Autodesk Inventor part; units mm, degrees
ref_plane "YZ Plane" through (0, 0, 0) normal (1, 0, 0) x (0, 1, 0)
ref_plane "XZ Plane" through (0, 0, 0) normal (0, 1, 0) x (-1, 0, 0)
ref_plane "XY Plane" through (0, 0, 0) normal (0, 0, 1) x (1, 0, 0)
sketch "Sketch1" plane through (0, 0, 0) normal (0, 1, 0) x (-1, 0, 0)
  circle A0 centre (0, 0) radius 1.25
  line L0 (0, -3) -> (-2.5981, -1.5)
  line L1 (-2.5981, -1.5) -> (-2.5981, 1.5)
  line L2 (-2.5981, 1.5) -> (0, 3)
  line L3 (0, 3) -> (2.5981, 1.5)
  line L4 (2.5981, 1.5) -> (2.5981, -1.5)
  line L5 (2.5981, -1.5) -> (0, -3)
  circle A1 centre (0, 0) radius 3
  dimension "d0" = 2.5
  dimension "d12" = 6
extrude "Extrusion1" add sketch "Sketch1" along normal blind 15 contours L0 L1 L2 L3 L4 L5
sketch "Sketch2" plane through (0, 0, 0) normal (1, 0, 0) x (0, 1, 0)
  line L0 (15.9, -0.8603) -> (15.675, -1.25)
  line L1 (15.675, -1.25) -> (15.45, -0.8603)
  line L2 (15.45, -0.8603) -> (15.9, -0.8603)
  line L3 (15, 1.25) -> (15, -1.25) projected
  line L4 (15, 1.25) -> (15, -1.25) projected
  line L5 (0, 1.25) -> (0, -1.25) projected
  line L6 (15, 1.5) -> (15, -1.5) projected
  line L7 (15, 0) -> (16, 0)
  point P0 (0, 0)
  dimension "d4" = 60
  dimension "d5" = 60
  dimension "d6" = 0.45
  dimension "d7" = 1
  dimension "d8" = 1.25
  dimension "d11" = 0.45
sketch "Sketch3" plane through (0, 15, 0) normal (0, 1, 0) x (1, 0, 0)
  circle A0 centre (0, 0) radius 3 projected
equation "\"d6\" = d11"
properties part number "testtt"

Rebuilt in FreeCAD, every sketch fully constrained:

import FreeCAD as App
import Part
import Sketcher

V = App.Vector
Q = App.Units.Quantity

doc = App.newDocument("Part")
params = doc.addObject("Spreadsheet::Sheet", "Params")
for row, (alias, value) in enumerate([
    ("sketch1_diameter", "2.5 mm"),
    ("sketch1_height", "3 mm"),
    ("pad1_length", "15 mm"),
], start=1):
    params.set(f"A{row}", alias)
    params.set(f"B{row}", "=" + value)
    params.setAlias(f"B{row}", alias)

body = doc.addObject("PartDesign::Body", "Body")

# Sketch on XZ plane
sketch1 = doc.addObject("Sketcher::SketchObject", "Sketch")
body.addObject(sketch1)
sketch1.AttachmentSupport = (doc.XZ_Plane, [""])
sketch1.MapMode = "FlatFace"
sketch1.addGeometry([
    Part.LineSegment(V(2.6, -1.5, 0), V(0, -3, 0)),  # 0
    Part.LineSegment(V(0, -3, 0), V(-2.6, -1.5, 0)),  # 1
    Part.LineSegment(V(-2.6, -1.5, 0), V(-2.6, 1.5, 0)),  # 2
    Part.LineSegment(V(-2.6, 1.5, 0), V(0, 3, 0)),  # 3
    Part.LineSegment(V(0, 3, 0), V(2.6, 1.5, 0)),  # 4
    Part.LineSegment(V(2.6, 1.5, 0), V(2.6, -1.5, 0)),  # 5
    Part.Circle(V(0, 0, 0), V(0, 0, 1), 1.2),  # 6
], False)
sketch1.addConstraint([
    Sketcher.Constraint("Coincident", 0, 2, 1, 1),
    Sketcher.Constraint("Coincident", 1, 2, 2, 1),
    Sketcher.Constraint("Coincident", 2, 2, 3, 1),
    Sketcher.Constraint("Coincident", 3, 2, 4, 1),
    Sketcher.Constraint("Coincident", 4, 2, 5, 1),
    Sketcher.Constraint("Coincident", 5, 2, 0, 1),
    Sketcher.Constraint("Vertical", 2),
    Sketcher.Constraint("Vertical", 5),
    Sketcher.Constraint("Coincident", 6, 3, -1, 1),
    Sketcher.Constraint("Symmetric", 0, 2, 3, 2, -1, 1),
    Sketcher.Constraint("Symmetric", 1, 2, 4, 2, -1, 1),
    Sketcher.Constraint("PointOnObject", 0, 2, -2),
    Sketcher.Constraint("Parallel", 0, 3),
    Sketcher.Constraint("Horizontal", 2, 2, 4, 2),
    Sketcher.Constraint("Diameter", 6, 2.5),
    Sketcher.Constraint("DistanceY", 0, 2, 3, 2, 6.0),
    Sketcher.Constraint("DistanceY", 2, 1, 2, 2, 3.0),
    Sketcher.Constraint("Angle", 0, Q("-150.0002 deg")),
])
sketch1.setExpression("Constraints[14]", "Params.sketch1_diameter")
sketch1.setExpression("Constraints[16]", "Params.sketch1_height")
pad1 = doc.addObject("PartDesign::Pad", "Pad")
body.addObject(pad1)
pad1.Profile = sketch1
pad1.setExpression("Length", "Params.pad1_length")
pad1.Reversed = True

doc.recompute()
